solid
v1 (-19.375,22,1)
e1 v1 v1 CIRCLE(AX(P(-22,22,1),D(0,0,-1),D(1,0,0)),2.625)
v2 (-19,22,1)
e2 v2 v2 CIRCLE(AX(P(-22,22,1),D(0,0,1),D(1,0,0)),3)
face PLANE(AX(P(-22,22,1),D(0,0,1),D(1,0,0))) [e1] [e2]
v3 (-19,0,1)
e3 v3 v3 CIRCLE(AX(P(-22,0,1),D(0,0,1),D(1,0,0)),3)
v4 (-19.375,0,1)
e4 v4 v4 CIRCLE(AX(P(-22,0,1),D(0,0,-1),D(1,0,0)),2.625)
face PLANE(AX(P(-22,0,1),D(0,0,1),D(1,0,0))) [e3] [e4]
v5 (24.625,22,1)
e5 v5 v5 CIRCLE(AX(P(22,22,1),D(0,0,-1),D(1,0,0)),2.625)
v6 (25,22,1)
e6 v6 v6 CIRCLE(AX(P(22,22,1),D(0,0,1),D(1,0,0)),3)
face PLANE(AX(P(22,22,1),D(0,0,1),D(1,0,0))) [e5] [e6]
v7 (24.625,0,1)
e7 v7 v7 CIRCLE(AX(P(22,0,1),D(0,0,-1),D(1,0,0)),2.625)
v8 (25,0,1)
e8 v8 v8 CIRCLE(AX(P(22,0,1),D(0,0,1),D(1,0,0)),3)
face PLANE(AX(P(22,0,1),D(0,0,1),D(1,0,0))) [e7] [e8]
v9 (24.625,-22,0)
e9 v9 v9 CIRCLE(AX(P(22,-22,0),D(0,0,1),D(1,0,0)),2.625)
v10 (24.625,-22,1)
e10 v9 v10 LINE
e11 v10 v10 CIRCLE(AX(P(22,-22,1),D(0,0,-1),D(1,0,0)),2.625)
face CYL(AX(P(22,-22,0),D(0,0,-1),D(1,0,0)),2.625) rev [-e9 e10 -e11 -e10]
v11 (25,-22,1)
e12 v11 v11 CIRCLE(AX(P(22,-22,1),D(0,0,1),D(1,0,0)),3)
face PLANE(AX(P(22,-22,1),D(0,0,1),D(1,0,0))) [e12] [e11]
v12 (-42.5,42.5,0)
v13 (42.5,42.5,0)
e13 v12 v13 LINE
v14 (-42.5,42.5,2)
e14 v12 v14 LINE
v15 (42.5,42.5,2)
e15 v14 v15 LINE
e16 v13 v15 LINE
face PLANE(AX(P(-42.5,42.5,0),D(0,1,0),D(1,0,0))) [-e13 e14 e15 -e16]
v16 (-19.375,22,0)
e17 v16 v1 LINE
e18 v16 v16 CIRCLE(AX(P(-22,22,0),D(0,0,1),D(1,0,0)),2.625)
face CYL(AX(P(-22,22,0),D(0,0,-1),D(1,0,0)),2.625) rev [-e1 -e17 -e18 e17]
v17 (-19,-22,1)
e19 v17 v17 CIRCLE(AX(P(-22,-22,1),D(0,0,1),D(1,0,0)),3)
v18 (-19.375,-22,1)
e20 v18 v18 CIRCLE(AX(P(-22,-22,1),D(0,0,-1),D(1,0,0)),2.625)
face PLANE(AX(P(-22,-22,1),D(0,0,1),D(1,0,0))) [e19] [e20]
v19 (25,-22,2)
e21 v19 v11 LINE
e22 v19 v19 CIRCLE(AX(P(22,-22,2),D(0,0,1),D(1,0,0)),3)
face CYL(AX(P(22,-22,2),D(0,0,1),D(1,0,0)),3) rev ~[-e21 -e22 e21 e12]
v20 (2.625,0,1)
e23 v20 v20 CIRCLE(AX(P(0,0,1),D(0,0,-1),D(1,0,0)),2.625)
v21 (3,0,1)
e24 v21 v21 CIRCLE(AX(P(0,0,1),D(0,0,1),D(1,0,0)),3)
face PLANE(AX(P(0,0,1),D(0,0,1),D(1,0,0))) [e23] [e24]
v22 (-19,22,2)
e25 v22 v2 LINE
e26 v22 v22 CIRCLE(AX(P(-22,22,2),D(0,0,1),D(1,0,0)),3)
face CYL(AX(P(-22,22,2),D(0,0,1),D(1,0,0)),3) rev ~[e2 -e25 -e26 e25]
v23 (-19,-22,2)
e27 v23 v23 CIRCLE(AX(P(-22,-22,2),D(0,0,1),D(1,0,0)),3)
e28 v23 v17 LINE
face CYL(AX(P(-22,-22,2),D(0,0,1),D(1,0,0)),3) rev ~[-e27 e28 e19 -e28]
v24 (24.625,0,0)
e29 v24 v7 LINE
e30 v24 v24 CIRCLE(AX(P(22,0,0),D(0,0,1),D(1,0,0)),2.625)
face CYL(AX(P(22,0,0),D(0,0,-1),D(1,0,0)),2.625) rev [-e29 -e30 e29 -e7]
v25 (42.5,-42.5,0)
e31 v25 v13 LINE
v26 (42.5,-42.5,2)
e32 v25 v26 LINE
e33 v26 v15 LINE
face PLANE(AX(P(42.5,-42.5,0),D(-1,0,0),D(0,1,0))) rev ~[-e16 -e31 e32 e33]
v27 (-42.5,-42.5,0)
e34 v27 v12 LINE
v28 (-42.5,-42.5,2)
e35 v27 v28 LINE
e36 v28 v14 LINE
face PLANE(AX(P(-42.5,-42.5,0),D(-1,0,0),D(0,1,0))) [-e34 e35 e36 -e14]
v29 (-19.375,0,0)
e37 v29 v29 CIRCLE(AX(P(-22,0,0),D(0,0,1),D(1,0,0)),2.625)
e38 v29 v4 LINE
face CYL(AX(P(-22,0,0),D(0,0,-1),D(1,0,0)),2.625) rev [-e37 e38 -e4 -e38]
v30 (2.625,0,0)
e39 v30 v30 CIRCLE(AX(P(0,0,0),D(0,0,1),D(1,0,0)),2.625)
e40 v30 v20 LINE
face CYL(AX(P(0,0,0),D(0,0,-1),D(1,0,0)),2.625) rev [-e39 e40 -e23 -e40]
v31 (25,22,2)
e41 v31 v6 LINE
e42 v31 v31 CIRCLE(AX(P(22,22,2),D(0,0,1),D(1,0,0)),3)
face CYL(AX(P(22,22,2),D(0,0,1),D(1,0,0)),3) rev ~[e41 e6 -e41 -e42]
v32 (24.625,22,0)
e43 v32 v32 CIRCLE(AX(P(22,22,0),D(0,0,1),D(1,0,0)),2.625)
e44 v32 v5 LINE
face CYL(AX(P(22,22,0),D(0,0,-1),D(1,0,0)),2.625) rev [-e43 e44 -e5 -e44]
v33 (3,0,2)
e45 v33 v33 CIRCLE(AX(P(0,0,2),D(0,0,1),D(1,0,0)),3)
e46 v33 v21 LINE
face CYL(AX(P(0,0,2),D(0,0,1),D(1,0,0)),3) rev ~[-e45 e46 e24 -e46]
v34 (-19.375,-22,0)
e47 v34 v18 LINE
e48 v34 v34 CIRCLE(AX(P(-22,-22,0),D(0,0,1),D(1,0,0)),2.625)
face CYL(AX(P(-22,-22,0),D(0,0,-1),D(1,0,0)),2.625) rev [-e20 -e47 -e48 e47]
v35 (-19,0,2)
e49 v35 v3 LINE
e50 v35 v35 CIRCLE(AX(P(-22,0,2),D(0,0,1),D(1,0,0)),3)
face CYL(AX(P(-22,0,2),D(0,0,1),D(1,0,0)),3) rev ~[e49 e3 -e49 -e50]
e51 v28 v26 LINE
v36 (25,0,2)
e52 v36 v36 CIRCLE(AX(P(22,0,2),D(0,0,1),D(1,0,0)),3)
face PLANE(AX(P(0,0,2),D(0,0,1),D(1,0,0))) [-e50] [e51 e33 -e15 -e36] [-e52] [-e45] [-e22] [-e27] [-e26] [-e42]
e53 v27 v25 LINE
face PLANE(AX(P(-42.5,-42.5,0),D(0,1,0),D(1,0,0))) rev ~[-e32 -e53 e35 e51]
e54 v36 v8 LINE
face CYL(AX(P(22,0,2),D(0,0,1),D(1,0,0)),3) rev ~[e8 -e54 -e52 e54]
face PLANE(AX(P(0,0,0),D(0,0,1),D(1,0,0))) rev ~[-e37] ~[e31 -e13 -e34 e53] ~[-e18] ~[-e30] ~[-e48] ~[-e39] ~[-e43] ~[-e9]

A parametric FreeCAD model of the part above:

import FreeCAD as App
import Part
import Sketcher
from FreeCAD import Vector


def add_polygon(sketch, points):
    """Adds a closed chain of lines whose ends are joined by coincident constraints."""
    first, n = sketch.GeometryCount, len(points)
    for a, b in zip(points, points[1:] + points[:1]):
        sketch.addGeometry(Part.LineSegment(App.Vector(*a, 0), App.Vector(*b, 0)), False)
    for i in range(n):
        sketch.addConstraint(Sketcher.Constraint("Coincident", first + i, 2, first + (i + 1) % n, 1))

doc = App.newDocument("Part")
body = doc.addObject("PartDesign::Body", "Body")

sketch1 = body.newObject("Sketcher::SketchObject", "Sketch")
sketch1.AttachmentSupport = (doc.getObject("XY_Plane"), [""])
sketch1.MapMode = "FlatFace"
add_polygon(sketch1, [(-42.5, 42.5), (-42.5, -42.5), (42.5, -42.5), (42.5, 42.5)])
sketch1.addGeometry(Part.Circle(Vector(-22, -22, 0), Vector(0, 0, 1), 2.6), False)
sketch1.addGeometry(Part.Circle(Vector(-22, 0, 0), Vector(0, 0, 1), 2.6), False)
sketch1.addGeometry(Part.Circle(Vector(0, 0, 0), Vector(0, 0, 1), 2.6), False)
sketch1.addGeometry(Part.Circle(Vector(22, -22, 0), Vector(0, 0, 1), 2.6), False)
sketch1.addGeometry(Part.Circle(Vector(22, 0, 0), Vector(0, 0, 1), 2.6), False)
sketch1.addGeometry(Part.Circle(Vector(-22, 22, 0), Vector(0, 0, 1), 2.6), False)
sketch1.addGeometry(Part.Circle(Vector(22, 22, 0), Vector(0, 0, 1), 2.6), False)
sketch1.addConstraint(Sketcher.Constraint("Vertical", 0))
sketch1.addConstraint(Sketcher.Constraint("Horizontal", 1))
sketch1.addConstraint(Sketcher.Constraint("Vertical", 2))
sketch1.addConstraint(Sketcher.Constraint("Horizontal", 3))
sketch1.addConstraint(Sketcher.Constraint("Coincident", 6, 3, -1, 1))
sketch1.addConstraint(Sketcher.Constraint("Equal", 4, 5))
sketch1.addConstraint(Sketcher.Constraint("Equal", 5, 6))
sketch1.addConstraint(Sketcher.Constraint("Equal", 6, 7))
sketch1.addConstraint(Sketcher.Constraint("Equal", 7, 8))
sketch1.addConstraint(Sketcher.Constraint("Equal", 8, 9))
sketch1.addConstraint(Sketcher.Constraint("Equal", 9, 10))
sketch1.addConstraint(Sketcher.Constraint("Symmetric", 5, 3, 8, 3, -1, 1))
sketch1.addConstraint(Sketcher.Constraint("Symmetric", 7, 3, 9, 3, -1, 1))
sketch1.addConstraint(Sketcher.Constraint("Symmetric", 4, 3, 10, 3, -1, 1))
sketch1.addConstraint(Sketcher.Constraint("Symmetric", 0, 2, 2, 2, -1, 1))
sketch1.addConstraint(Sketcher.Constraint("Symmetric", 4, 3, 7, 3, -2))
sketch1.addConstraint(Sketcher.Constraint("PointOnObject", 5, 3, -1))
sketch1.addConstraint(Sketcher.Constraint("Vertical", 4, 3, 5, 3))
sketch1.addConstraint(Sketcher.Constraint("Equal", 3, 0))
sketch1.addConstraint(Sketcher.Constraint("Diameter", 4, 5.25))
sketch1.addConstraint(Sketcher.Constraint("DistanceX", 1, 1, 1, 2, 85.0))
sketch1.addConstraint(Sketcher.Constraint("DistanceX", 4, 3, -1, 1, 22.0))
sketch1.addConstraint(Sketcher.Constraint("DistanceY", 4, 3, -1, 1, 22.0))
pad1 = body.newObject("PartDesign::Pad", "Pad")
pad1.Profile = sketch1
pad1.Length = 2

sketch2 = body.newObject("Sketcher::SketchObject", "Sketch001")
sketch2.AttachmentSupport = (doc.getObject("XY_Plane"), [""])
sketch2.MapMode = "FlatFace"
sketch2.AttachmentOffset = App.Placement(Vector(0, 0, 2), App.Rotation())
sketch2.addGeometry(Part.Circle(Vector(-22, 22, 0), Vector(0, 0, 1), 3), False)
sketch2.addGeometry(Part.Circle(Vector(-22, 0, 0), Vector(0, 0, 1), 3), False)
sketch2.addGeometry(Part.Circle(Vector(-22, -22, 0), Vector(0, 0, 1), 3), False)
sketch2.addGeometry(Part.Circle(Vector(0, 0, 0), Vector(0, 0, 1), 3), False)
sketch2.addGeometry(Part.Circle(Vector(22, 0, 0), Vector(0, 0, 1), 3), False)
sketch2.addGeometry(Part.Circle(Vector(22, 22, 0), Vector(0, 0, 1), 3), False)
sketch2.addGeometry(Part.Circle(Vector(22, -22, 0), Vector(0, 0, 1), 3), False)
sketch2.addConstraint(Sketcher.Constraint("Coincident", 3, 3, -1, 1))
sketch2.addConstraint(Sketcher.Constraint("Equal", 0, 1))
sketch2.addConstraint(Sketcher.Constraint("Equal", 1, 2))
sketch2.addConstraint(Sketcher.Constraint("Equal", 2, 3))
sketch2.addConstraint(Sketcher.Constraint("Equal", 3, 4))
sketch2.addConstraint(Sketcher.Constraint("Equal", 4, 5))
sketch2.addConstraint(Sketcher.Constraint("Equal", 5, 6))
sketch2.addConstraint(Sketcher.Constraint("Symmetric", 1, 3, 4, 3, -1, 1))
sketch2.addConstraint(Sketcher.Constraint("Symmetric", 2, 3, 5, 3, -1, 1))
sketch2.addConstraint(Sketcher.Constraint("Symmetric", 0, 3, 6, 3, -1, 1))
sketch2.addConstraint(Sketcher.Constraint("Symmetric", 0, 3, 5, 3, -2))
sketch2.addConstraint(Sketcher.Constraint("PointOnObject", 1, 3, -1))
sketch2.addConstraint(Sketcher.Constraint("Vertical", 0, 3, 1, 3))
sketch2.addConstraint(Sketcher.Constraint("Diameter", 0, 6.0))
sketch2.addConstraint(Sketcher.Constraint("DistanceX", 0, 3, -1, 1, 22.0))
sketch2.addConstraint(Sketcher.Constraint("DistanceY", -1, 1, 0, 3, 22.0))
pocket1 = body.newObject("PartDesign::Pocket", "Pocket")
pocket1.Profile = sketch2
pocket1.Length = 1

doc.recompute()
